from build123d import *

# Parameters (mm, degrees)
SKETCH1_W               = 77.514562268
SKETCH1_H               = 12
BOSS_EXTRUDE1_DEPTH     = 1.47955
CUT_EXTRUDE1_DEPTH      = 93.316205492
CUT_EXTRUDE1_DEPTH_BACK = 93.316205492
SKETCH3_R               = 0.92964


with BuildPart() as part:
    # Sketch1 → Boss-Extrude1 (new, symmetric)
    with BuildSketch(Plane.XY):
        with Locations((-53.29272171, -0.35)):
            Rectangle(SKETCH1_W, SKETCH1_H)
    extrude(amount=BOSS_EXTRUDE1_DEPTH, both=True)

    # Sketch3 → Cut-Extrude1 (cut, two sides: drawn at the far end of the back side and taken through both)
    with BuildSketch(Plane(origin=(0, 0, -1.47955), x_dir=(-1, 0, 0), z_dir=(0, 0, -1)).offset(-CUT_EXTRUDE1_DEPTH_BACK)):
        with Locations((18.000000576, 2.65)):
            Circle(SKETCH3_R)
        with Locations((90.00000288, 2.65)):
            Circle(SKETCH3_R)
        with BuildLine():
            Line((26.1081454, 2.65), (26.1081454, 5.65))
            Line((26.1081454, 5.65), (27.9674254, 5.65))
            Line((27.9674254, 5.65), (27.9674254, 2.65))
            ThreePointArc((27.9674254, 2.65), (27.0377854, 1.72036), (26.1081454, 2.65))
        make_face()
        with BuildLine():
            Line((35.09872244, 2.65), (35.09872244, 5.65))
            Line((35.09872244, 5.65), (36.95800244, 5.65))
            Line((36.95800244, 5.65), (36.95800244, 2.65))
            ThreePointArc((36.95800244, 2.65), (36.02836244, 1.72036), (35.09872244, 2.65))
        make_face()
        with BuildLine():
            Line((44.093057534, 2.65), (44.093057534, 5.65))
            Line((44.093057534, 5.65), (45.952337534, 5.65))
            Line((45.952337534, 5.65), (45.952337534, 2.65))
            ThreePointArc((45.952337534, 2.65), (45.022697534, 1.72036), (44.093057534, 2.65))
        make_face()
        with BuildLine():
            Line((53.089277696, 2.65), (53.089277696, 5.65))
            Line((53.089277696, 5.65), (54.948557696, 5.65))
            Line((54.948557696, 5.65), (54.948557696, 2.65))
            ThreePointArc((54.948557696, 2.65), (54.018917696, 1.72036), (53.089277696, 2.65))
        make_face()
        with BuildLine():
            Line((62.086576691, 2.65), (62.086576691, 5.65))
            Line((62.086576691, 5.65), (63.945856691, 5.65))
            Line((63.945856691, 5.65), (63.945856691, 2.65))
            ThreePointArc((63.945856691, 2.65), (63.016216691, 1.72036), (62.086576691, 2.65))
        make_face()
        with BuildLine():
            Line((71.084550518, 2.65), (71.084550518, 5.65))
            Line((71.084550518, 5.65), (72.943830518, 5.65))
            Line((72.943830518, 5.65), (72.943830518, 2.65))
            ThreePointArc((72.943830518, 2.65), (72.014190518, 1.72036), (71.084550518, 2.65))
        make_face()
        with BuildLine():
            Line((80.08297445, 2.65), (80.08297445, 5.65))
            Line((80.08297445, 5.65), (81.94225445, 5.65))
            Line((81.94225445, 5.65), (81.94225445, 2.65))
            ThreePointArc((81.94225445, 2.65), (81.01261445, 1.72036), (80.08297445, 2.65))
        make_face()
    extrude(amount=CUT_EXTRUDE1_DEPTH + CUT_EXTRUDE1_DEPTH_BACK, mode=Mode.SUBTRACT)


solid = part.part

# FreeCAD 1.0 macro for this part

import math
import FreeCAD as App
import Part
import Sketcher

V = App.Vector


def add_polygon(sketch, points):
    """Adds a closed chain of lines whose ends are joined by coincident constraints."""
    first, n = sketch.GeometryCount, len(points)
    for a, b in zip(points, points[1:] + points[:1]):
        sketch.addGeometry(Part.LineSegment(App.Vector(*a, 0), App.Vector(*b, 0)), False)
    for i in range(n):
        sketch.addConstraint(Sketcher.Constraint("Coincident", first + i, 2, first + (i + 1) % n, 1))

doc = App.newDocument("Part")
body = doc.addObject("PartDesign::Body", "Body")

sketch1 = body.newObject("Sketcher::SketchObject", "Sketch")
sketch1.AttachmentSupport = (doc.getObject("XY_Plane"), [""])
sketch1.MapMode = "FlatFace"
add_polygon(sketch1, [(-92.050003, 5.65), (-92.050003, -6.35), (-14.535441, -6.35), (-14.535441, 5.65)])
sketch1.addConstraint([
    Sketcher.Constraint("Vertical", 0),
    Sketcher.Constraint("Horizontal", 1),
    Sketcher.Constraint("Vertical", 2),
    Sketcher.Constraint("Horizontal", 3),
    Sketcher.Constraint("DistanceY", 0, 2, 0, 1, 12.0),
    Sketcher.Constraint("DistanceY", 0, 2, -1, 1, 6.35),
    Sketcher.Constraint("DistanceX", 1, 1, 1, 2, 77.514562),
    Sketcher.Constraint("DistanceX", 1, 2, -1, 1, 14.535441),
])
pad1 = body.newObject("PartDesign::Pad", "Pad")
pad1.Profile = sketch1
pad1.Length = 2.9591
pad1.Midplane = True

sketch2 = body.newObject("Sketcher::SketchObject", "Sketch001")
sketch2.AttachmentSupport = (doc.getObject("XY_Plane"), [""])
sketch2.MapMode = "FlatFace"
sketch2.AttachmentOffset = App.Placement(V(0, 0, -1.47955), App.Rotation())
sketch2.addGeometry([
    Part.Circle(V(-18.000001, 2.65, 0), V(0, 0, 1), 0.92964),
    Part.Circle(V(-90.000003, 2.65, 0), V(0, 0, 1), 0.92964),
    Part.LineSegment(V(-26.108145, 5.65, 0), V(-26.108145, 2.65, 0)),
    Part.ArcOfCircle(Part.Circle(V(-27.037785, 2.65, 0), V(0, 0, 1), 0.92964), math.radians(180), math.radians(360)),
    Part.LineSegment(V(-27.967425, 2.65, 0), V(-27.967425, 5.65, 0)),
    Part.LineSegment(V(-27.967425, 5.65, 0), V(-26.108145, 5.65, 0)),
    Part.LineSegment(V(-35.098722, 5.65, 0), V(-35.098722, 2.65, 0)),
    Part.ArcOfCircle(Part.Circle(V(-36.028362, 2.65, 0), V(0, 0, 1), 0.92964), math.radians(180), math.radians(360)),
    Part.LineSegment(V(-36.958002, 2.65, 0), V(-36.958002, 5.65, 0)),
    Part.LineSegment(V(-36.958002, 5.65, 0), V(-35.098722, 5.65, 0)),
    Part.LineSegment(V(-44.093058, 5.65, 0), V(-44.093058, 2.65, 0)),
    Part.ArcOfCircle(Part.Circle(V(-45.022698, 2.65, 0), V(0, 0, 1), 0.92964), math.radians(180), math.radians(360)),
    Part.LineSegment(V(-45.952338, 2.65, 0), V(-45.952338, 5.65, 0)),
    Part.LineSegment(V(-45.952338, 5.65, 0), V(-44.093058, 5.65, 0)),
    Part.LineSegment(V(-53.089278, 5.65, 0), V(-53.089278, 2.65, 0)),
    Part.ArcOfCircle(Part.Circle(V(-54.018918, 2.65, 0), V(0, 0, 1), 0.92964), math.radians(180), math.radians(360)),
    Part.LineSegment(V(-54.948558, 2.65, 0), V(-54.948558, 5.65, 0)),
    Part.LineSegment(V(-54.948558, 5.65, 0), V(-53.089278, 5.65, 0)),
    Part.LineSegment(V(-62.086577, 5.65, 0), V(-62.086577, 2.65, 0)),
    Part.ArcOfCircle(Part.Circle(V(-63.016217, 2.65, 0), V(0, 0, 1), 0.92964), math.radians(180), math.radians(360)),
    Part.LineSegment(V(-63.945857, 2.65, 0), V(-63.945857, 5.65, 0)),
    Part.LineSegment(V(-63.945857, 5.65, 0), V(-62.086577, 5.65, 0)),
    Part.LineSegment(V(-71.084551, 5.65, 0), V(-71.084551, 2.65, 0)),
    Part.ArcOfCircle(Part.Circle(V(-72.014191, 2.65, 0), V(0, 0, 1), 0.92964), math.radians(180), math.radians(360)),
    Part.LineSegment(V(-72.943831, 2.65, 0), V(-72.943831, 5.65, 0)),
    Part.LineSegment(V(-72.943831, 5.65, 0), V(-71.084551, 5.65, 0)),
    Part.LineSegment(V(-80.082974, 5.65, 0), V(-80.082974, 2.65, 0)),
    Part.ArcOfCircle(Part.Circle(V(-81.012614, 2.65, 0), V(0, 0, 1), 0.92964), math.radians(180), math.radians(360)),
    Part.LineSegment(V(-81.942254, 2.65, 0), V(-81.942254, 5.65, 0)),
    Part.LineSegment(V(-81.942254, 5.65, 0), V(-80.082974, 5.65, 0)),
], False)
sketch2.addConstraint([
    Sketcher.Constraint("Tangent", 2, 2, 3, 2),
    Sketcher.Constraint("Tangent", 3, 1, 4, 1),
    Sketcher.Constraint("Coincident", 4, 2, 5, 1),
    Sketcher.Constraint("Coincident", 5, 2, 2, 1),
    Sketcher.Constraint("Tangent", 6, 2, 7, 2),
    Sketcher.Constraint("Tangent", 7, 1, 8, 1),
    Sketcher.Constraint("Coincident", 8, 2, 9, 1),
    Sketcher.Constraint("Coincident", 9, 2, 6, 1),
    Sketcher.Constraint("Tangent", 10, 2, 11, 2),
    Sketcher.Constraint("Tangent", 11, 1, 12, 1),
    Sketcher.Constraint("Coincident", 12, 2, 13, 1),
    Sketcher.Constraint("Coincident", 13, 2, 10, 1),
    Sketcher.Constraint("Tangent", 14, 2, 15, 2),
    Sketcher.Constraint("Tangent", 15, 1, 16, 1),
    Sketcher.Constraint("Coincident", 16, 2, 17, 1),
    Sketcher.Constraint("Coincident", 17, 2, 14, 1),
    Sketcher.Constraint("Tangent", 18, 2, 19, 2),
    Sketcher.Constraint("Tangent", 19, 1, 20, 1),
    Sketcher.Constraint("Coincident", 20, 2, 21, 1),
    Sketcher.Constraint("Coincident", 21, 2, 18, 1),
    Sketcher.Constraint("Tangent", 22, 2, 23, 2),
    Sketcher.Constraint("Tangent", 23, 1, 24, 1),
    Sketcher.Constraint("Coincident", 24, 2, 25, 1),
    Sketcher.Constraint("Coincident", 25, 2, 22, 1),
    Sketcher.Constraint("Tangent", 26, 2, 27, 2),
    Sketcher.Constraint("Tangent", 27, 1, 28, 1),
    Sketcher.Constraint("Coincident", 28, 2, 29, 1),
    Sketcher.Constraint("Coincident", 29, 2, 26, 1),
    Sketcher.Constraint("Vertical", 2),
    Sketcher.Constraint("Vertical", 4),
    Sketcher.Constraint("Horizontal", 5),
    Sketcher.Constraint("Vertical", 6),
    Sketcher.Constraint("Vertical", 8),
    Sketcher.Constraint("Horizontal", 9),
    Sketcher.Constraint("Vertical", 10),
    Sketcher.Constraint("Vertical", 12),
    Sketcher.Constraint("Horizontal", 13),
    Sketcher.Constraint("Vertical", 14),
    Sketcher.Constraint("Vertical", 16),
    Sketcher.Constraint("Horizontal", 17),
    Sketcher.Constraint("Vertical", 18),
    Sketcher.Constraint("Vertical", 20),
    Sketcher.Constraint("Horizontal", 21),
    Sketcher.Constraint("Vertical", 22),
    Sketcher.Constraint("Vertical", 24),
    Sketcher.Constraint("Horizontal", 25),
    Sketcher.Constraint("Vertical", 26),
    Sketcher.Constraint("Vertical", 28),
    Sketcher.Constraint("Horizontal", 29),
    Sketcher.Constraint("Equal", 0, 1),
    Sketcher.Constraint("Equal", 1, 3),
    Sketcher.Constraint("Equal", 3, 7),
    Sketcher.Constraint("Equal", 7, 11),
    Sketcher.Constraint("Equal", 11, 15),
    Sketcher.Constraint("Equal", 15, 19),
    Sketcher.Constraint("Equal", 19, 23),
    Sketcher.Constraint("Equal", 23, 27),
    Sketcher.Constraint("Horizontal", 0, 3, 1, 3),
    Sketcher.Constraint("Horizontal", 1, 3, 3, 3),
    Sketcher.Constraint("Horizontal", 3, 3, 7, 3),
    Sketcher.Constraint("Horizontal", 7, 3, 11, 3),
    Sketcher.Constraint("Horizontal", 11, 3, 15, 3),
    Sketcher.Constraint("Horizontal", 15, 3, 19, 3),
    Sketcher.Constraint("Horizontal", 19, 3, 23, 3),
    Sketcher.Constraint("Horizontal", 23, 3, 27, 3),
    Sketcher.Constraint("Horizontal", 5, 2, 8, 2),
    Sketcher.Constraint("Horizontal", 9, 2, 12, 2),
    Sketcher.Constraint("Horizontal", 13, 2, 16, 2),
    Sketcher.Constraint("Horizontal", 17, 2, 20, 2),
    Sketcher.Constraint("Horizontal", 21, 2, 24, 2),
    Sketcher.Constraint("Horizontal", 25, 2, 28, 2),
    Sketcher.Constraint("DistanceY", 2, 2, 2, 1, 3.0),
    Sketcher.Constraint("DistanceX", 0, 3, -1, 1, 18.000001),
    Sketcher.Constraint("Diameter", 0, 1.85928),
    Sketcher.Constraint("DistanceY", -1, 1, 0, 3, 2.65),
    Sketcher.Constraint("DistanceX", 19, 3, 15, 3, 8.997299),
    Sketcher.Constraint("DistanceX", 23, 3, -1, 1, 72.014191),
    Sketcher.Constraint("DistanceX", 7, 3, 0, 3, 18.028362),
    Sketcher.Constraint("DistanceX", 1, 3, 7, 3, 53.97164),
    Sketcher.Constraint("DistanceX", 15, 3, 11, 3, 8.99622),
    Sketcher.Constraint("DistanceX", 19, 3, 3, 3, 35.978431),
    Sketcher.Constraint("DistanceX", 1, 3, 27, 3, 8.987388),
    Sketcher.Constraint("DistanceX", 3, 3, -1, 1, 27.037785),
])
pocket1 = body.newObject("PartDesign::Pocket", "Pocket")
pocket1.Profile = sketch2
pocket1.Type = "ThroughAll"
pocket1.Midplane = True

doc.recompute()
